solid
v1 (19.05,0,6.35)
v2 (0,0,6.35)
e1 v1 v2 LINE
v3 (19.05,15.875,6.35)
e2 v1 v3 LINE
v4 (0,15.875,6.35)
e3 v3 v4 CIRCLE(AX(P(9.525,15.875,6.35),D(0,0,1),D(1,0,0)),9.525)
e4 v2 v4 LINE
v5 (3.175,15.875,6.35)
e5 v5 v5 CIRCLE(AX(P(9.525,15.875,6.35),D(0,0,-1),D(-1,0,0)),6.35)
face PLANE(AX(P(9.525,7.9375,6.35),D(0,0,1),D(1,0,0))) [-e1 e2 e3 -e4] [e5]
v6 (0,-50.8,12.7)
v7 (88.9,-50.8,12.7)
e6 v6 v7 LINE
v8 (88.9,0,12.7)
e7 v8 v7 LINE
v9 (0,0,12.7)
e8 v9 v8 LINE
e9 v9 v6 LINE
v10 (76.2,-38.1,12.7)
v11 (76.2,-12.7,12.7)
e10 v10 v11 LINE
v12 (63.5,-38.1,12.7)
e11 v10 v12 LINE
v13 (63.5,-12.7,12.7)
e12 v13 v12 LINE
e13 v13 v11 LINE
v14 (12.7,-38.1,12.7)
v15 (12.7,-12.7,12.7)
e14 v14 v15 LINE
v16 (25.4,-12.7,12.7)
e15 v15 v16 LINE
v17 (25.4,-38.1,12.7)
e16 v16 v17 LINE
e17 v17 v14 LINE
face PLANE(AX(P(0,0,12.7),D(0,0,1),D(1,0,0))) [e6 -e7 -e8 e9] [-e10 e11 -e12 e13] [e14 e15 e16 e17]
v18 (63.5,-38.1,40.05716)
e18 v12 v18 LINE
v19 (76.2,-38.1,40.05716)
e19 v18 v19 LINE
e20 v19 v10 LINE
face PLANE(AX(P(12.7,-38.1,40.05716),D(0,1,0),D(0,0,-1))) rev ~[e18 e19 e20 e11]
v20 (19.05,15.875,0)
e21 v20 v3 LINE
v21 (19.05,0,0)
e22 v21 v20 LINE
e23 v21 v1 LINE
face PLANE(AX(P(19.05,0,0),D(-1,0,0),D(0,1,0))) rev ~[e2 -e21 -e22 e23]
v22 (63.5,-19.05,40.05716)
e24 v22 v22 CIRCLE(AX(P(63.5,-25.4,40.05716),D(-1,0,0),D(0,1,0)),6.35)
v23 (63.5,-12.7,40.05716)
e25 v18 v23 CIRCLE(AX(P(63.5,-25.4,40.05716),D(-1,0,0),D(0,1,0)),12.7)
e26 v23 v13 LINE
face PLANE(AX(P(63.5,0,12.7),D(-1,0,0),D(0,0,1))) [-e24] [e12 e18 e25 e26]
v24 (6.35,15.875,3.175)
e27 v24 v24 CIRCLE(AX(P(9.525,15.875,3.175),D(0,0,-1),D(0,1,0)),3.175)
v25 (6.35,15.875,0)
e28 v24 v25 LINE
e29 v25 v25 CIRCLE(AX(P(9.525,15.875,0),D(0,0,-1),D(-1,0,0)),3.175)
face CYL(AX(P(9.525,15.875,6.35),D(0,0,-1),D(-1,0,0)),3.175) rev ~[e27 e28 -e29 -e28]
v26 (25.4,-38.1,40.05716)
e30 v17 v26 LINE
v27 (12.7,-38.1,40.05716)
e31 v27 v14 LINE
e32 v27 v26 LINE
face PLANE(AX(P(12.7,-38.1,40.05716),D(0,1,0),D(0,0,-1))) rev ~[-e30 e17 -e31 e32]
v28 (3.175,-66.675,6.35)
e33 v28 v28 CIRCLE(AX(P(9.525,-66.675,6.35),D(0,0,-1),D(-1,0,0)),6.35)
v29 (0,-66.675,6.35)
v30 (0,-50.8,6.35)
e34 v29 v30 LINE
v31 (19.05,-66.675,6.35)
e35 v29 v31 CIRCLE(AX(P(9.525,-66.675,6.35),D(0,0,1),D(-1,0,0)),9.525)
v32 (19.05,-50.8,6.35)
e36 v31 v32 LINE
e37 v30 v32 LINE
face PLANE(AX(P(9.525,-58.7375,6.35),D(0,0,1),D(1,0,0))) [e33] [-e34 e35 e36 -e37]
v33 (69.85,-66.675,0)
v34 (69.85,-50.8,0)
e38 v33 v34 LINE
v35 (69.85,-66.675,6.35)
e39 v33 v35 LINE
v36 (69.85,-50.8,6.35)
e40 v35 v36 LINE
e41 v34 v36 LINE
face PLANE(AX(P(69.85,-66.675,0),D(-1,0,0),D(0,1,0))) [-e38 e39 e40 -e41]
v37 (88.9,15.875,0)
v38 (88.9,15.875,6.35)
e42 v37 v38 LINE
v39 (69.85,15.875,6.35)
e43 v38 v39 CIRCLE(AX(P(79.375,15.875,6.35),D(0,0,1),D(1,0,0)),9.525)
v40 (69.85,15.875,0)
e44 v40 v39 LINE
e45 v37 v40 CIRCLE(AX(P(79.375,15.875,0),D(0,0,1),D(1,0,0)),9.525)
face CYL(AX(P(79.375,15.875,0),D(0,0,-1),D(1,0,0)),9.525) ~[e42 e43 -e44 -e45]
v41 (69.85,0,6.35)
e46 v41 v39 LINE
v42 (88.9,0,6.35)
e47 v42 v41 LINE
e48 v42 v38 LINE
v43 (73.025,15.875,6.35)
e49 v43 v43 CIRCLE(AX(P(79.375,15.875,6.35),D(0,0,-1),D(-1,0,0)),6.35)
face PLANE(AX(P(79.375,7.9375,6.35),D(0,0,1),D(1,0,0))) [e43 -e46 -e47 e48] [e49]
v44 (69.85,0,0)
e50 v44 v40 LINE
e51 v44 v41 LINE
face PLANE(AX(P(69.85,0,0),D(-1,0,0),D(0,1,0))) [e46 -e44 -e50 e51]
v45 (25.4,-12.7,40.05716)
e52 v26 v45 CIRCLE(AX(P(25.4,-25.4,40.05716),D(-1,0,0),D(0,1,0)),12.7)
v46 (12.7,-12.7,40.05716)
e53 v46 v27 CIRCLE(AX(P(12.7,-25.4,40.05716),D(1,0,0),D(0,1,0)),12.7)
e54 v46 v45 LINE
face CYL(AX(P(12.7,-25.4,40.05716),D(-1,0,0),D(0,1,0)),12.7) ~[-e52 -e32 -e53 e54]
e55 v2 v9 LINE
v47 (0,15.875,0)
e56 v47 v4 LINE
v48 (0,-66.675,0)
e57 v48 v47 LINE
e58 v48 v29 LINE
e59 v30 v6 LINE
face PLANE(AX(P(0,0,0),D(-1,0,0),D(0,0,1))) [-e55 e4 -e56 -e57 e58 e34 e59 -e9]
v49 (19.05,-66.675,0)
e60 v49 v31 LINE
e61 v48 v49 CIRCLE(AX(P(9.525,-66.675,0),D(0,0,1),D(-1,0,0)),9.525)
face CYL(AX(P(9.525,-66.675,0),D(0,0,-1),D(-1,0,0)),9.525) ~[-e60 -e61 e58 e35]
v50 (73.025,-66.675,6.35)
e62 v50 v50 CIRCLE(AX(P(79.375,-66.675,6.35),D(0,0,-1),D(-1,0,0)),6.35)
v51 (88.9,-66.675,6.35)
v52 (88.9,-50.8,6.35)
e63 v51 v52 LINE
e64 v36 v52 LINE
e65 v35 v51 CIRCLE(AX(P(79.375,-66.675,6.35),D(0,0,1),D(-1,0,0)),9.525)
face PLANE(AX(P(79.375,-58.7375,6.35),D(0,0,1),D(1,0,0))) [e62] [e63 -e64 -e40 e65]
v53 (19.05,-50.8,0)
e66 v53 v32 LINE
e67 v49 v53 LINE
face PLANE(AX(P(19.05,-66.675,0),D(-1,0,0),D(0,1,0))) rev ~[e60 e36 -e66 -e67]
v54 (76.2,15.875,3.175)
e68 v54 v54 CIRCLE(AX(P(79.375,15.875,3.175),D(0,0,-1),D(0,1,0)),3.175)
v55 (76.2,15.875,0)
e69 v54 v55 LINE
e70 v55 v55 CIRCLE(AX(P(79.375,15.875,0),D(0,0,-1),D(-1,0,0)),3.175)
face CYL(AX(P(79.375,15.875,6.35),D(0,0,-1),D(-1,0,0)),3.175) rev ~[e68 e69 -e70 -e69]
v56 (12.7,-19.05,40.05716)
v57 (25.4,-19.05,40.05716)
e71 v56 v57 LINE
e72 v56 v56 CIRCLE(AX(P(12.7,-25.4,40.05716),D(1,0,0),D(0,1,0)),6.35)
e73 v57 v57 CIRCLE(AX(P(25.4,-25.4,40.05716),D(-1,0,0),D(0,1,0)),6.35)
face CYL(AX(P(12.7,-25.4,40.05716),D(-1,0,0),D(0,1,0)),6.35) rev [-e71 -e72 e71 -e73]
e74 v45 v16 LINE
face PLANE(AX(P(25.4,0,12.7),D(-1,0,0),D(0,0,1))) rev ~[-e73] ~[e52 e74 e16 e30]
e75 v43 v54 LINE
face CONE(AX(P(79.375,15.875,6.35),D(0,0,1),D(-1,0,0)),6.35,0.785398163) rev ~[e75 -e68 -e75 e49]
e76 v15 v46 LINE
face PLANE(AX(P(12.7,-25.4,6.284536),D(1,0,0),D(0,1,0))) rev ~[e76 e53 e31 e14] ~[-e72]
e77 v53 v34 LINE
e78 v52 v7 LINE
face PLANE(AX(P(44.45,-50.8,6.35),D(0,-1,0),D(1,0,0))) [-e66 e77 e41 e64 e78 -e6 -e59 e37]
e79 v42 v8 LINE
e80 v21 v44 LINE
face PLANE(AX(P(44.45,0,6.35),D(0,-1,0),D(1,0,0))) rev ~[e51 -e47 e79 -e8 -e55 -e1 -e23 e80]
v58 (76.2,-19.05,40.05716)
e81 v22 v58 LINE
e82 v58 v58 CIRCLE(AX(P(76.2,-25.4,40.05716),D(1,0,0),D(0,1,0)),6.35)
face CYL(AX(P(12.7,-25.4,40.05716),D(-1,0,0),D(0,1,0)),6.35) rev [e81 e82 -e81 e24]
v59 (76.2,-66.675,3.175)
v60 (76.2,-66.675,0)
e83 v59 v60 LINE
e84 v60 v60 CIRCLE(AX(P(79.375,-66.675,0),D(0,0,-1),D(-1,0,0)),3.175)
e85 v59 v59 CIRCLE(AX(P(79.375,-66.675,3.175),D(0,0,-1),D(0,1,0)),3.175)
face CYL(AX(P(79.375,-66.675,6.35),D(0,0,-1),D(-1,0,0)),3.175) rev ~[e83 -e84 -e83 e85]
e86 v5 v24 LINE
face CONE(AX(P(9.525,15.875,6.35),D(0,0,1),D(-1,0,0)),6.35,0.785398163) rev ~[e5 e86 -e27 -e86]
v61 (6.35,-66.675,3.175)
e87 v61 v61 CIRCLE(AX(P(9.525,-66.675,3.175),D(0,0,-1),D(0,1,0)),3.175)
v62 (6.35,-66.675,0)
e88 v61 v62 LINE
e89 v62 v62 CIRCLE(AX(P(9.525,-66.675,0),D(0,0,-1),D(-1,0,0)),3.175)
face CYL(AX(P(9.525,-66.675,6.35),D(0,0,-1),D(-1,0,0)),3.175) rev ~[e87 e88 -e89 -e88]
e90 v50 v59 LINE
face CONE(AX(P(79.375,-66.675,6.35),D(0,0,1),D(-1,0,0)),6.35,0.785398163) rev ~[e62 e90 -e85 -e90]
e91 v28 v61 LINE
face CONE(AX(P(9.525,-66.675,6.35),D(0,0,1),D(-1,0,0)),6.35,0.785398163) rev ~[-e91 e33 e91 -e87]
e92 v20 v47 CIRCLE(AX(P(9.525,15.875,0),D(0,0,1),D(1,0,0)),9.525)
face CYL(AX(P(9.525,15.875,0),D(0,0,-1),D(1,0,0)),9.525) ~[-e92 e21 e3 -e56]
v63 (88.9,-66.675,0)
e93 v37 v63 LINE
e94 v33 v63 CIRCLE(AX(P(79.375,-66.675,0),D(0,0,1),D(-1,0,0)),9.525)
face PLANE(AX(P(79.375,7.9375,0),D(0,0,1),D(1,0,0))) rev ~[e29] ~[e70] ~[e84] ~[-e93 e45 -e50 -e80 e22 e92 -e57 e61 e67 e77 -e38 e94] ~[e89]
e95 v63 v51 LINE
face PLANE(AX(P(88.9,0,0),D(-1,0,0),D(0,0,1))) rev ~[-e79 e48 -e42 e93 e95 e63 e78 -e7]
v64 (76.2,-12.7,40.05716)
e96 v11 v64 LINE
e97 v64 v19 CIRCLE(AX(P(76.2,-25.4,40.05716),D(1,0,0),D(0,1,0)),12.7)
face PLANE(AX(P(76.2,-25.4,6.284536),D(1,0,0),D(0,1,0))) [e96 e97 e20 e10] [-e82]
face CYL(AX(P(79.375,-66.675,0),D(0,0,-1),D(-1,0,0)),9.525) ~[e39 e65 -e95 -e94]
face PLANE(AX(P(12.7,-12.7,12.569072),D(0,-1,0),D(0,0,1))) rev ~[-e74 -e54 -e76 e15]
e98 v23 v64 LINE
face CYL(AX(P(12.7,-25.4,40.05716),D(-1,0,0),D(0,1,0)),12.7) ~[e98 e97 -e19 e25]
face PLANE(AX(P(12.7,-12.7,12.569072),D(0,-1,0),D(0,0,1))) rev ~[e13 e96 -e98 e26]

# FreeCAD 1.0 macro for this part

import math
import FreeCAD as App
import Part
import Sketcher
Q = App.Units.Quantity


def add_polygon(sketch, points):
    """Adds a closed chain of lines whose ends are joined by coincident constraints."""
    first, n = sketch.GeometryCount, len(points)
    for a, b in zip(points, points[1:] + points[:1]):
        sketch.addGeometry(Part.LineSegment(App.Vector(*a, 0), App.Vector(*b, 0)), False)
    for i in range(n):
        sketch.addConstraint(Sketcher.Constraint("Coincident", first + i, 2, first + (i + 1) % n, 1))

doc = App.newDocument("Part")
params = doc.addObject("Spreadsheet::Sheet", "Params")
for row, (alias, value) in enumerate([
    ("sketch1_width", "3.5 in"),
    ("sketch1_height", "0.5 in"),
    ("pad1_length", "2 in"),
    ("sketch2_radius", "0.375 in"),
    ("sketch2_height", "0.625 in"),
    ("pad2_length", "0.25 in"),
    ("sketch3_diameter", "0.5 in"),
    ("sketch3_radius", "0.5 in"),
    ("sketch3_width", "2 in"),
    ("pad3_length", "2.5 in"),
    ("sketch4_width", "1.5 in"),
    ("sketch4_height", "1.75 in"),
    ("pocket1_length", "2 in"),
    ("sketch5_diameter", "0.25 in"),
    ("hole_diameter", "0.25 in"),
    ("hole_csink_diameter", "0.5 in"),
], start=1):
    params.set(f"A{row}", alias)
    params.set(f"B{row}", "=" + value)
    params.setAlias(f"B{row}", alias)

body = doc.addObject("PartDesign::Body", "Body")

# Sketch on XZ plane
sketch1 = body.newObject("Sketcher::SketchObject", "Sketch")
sketch1.AttachmentSupport = (doc.getObject("XZ_Plane"), [""])
sketch1.MapMode = "FlatFace"
add_polygon(sketch1, [(0, 13), (0, 0), (89, 0), (89, 13)])  # lines 0-3
sketch1.addConstraint(Sketcher.Constraint("Vertical", 0))
sketch1.addConstraint(Sketcher.Constraint("Horizontal", 1))
sketch1.addConstraint(Sketcher.Constraint("Vertical", 2))
sketch1.addConstraint(Sketcher.Constraint("Horizontal", 3))
sketch1.addConstraint(Sketcher.Constraint("Coincident", 0, 2, -1, 1))
sketch1.addConstraint(Sketcher.Constraint("DistanceX", 1, 1, 1, 2, Q("3.5 in")))
sketch1.addConstraint(Sketcher.Constraint("DistanceY", 0, 2, 0, 1, Q("0.5 in")))
sketch1.setExpression("Constraints[9]", "Params.sketch1_width")
sketch1.setExpression("Constraints[10]", "Params.sketch1_height")
pad1 = body.newObject("PartDesign::Pad", "Pad")
pad1.Profile = sketch1
pad1.setExpression("Length", "Params.pad1_length")

# Sketch on XY plane
sketch2 = body.newObject("Sketcher::SketchObject", "Sketch001")
sketch2.AttachmentSupport = (doc.getObject("XY_Plane"), [""])
sketch2.MapMode = "FlatFace"
sketch2.addGeometry(Part.LineSegment(App.Vector(70, 16, 0), App.Vector(70, 0, 0)), False)
sketch2.addGeometry(Part.LineSegment(App.Vector(70, 0, 0), App.Vector(89, 0, 0)), False)
sketch2.addGeometry(Part.LineSegment(App.Vector(89, 0, 0), App.Vector(89, 16, 0)), False)
sketch2.addGeometry(Part.ArcOfCircle(Part.Circle(App.Vector(79, 16, 0), App.Vector(0, 0, 1), 10), math.radians(0), math.radians(180)), False)
sketch2.addGeometry(Part.LineSegment(App.Vector(70, -51, 0), App.Vector(70, -67, 0)), False)
sketch2.addGeometry(Part.ArcOfCircle(Part.Circle(App.Vector(79, -67, 0), App.Vector(0, 0, 1), 10), math.radians(180), math.radians(360)), False)
sketch2.addGeometry(Part.LineSegment(App.Vector(89, -67, 0), App.Vector(89, -51, 0)), False)
sketch2.addGeometry(Part.LineSegment(App.Vector(89, -51, 0), App.Vector(70, -51, 0)), False)
sketch2.addGeometry(Part.LineSegment(App.Vector(0, -51, 0), App.Vector(0, -67, 0)), False)
sketch2.addGeometry(Part.ArcOfCircle(Part.Circle(App.Vector(10, -67, 0), App.Vector(0, 0, 1), 10), math.radians(180), math.radians(360)), False)
sketch2.addGeometry(Part.LineSegment(App.Vector(19, -67, 0), App.Vector(19, -51, 0)), False)
sketch2.addGeometry(Part.LineSegment(App.Vector(19, -51, 0), App.Vector(0, -51, 0)), False)
sketch2.addGeometry(Part.LineSegment(App.Vector(0, 16, 0), App.Vector(0, 0, 0)), False)
sketch2.addGeometry(Part.LineSegment(App.Vector(0, 0, 0), App.Vector(19, 0, 0)), False)
sketch2.addGeometry(Part.LineSegment(App.Vector(19, 0, 0), App.Vector(19, 16, 0)), False)
sketch2.addGeometry(Part.ArcOfCircle(Part.Circle(App.Vector(10, 16, 0), App.Vector(0, 0, 1), 10), math.radians(0), math.radians(180)), False)
sketch2.addConstraint(Sketcher.Constraint("Coincident", 0, 2, 1, 1))
sketch2.addConstraint(Sketcher.Constraint("Coincident", 1, 2, 2, 1))
sketch2.addConstraint(Sketcher.Constraint("Tangent", 2, 2, 3, 1))
sketch2.addConstraint(Sketcher.Constraint("Tangent", 3, 2, 0, 1))
sketch2.addConstraint(Sketcher.Constraint("Tangent", 4, 2, 5, 1))
sketch2.addConstraint(Sketcher.Constraint("Tangent", 5, 2, 6, 1))
sketch2.addConstraint(Sketcher.Constraint("Coincident", 6, 2, 7, 1))
sketch2.addConstraint(Sketcher.Constraint("Coincident", 7, 2, 4, 1))
sketch2.addConstraint(Sketcher.Constraint("Tangent", 8, 2, 9, 1))
sketch2.addConstraint(Sketcher.Constraint("Tangent", 9, 2, 10, 1))
sketch2.addConstraint(Sketcher.Constraint("Coincident", 10, 2, 11, 1))
sketch2.addConstraint(Sketcher.Constraint("Coincident", 11, 2, 8, 1))
sketch2.addConstraint(Sketcher.Constraint("Coincident", 12, 2, 13, 1))
sketch2.addConstraint(Sketcher.Constraint("Coincident", 13, 2, 14, 1))
sketch2.addConstraint(Sketcher.Constraint("Tangent", 14, 2, 15, 1))
sketch2.addConstraint(Sketcher.Constraint("Tangent", 15, 2, 12, 1))
sketch2.addConstraint(Sketcher.Constraint("Vertical", 0))
sketch2.addConstraint(Sketcher.Constraint("Horizontal", 1))
sketch2.addConstraint(Sketcher.Constraint("Vertical", 2))
sketch2.addConstraint(Sketcher.Constraint("Vertical", 4))
sketch2.addConstraint(Sketcher.Constraint("Vertical", 6))
sketch2.addConstraint(Sketcher.Constraint("Horizontal", 7))
sketch2.addConstraint(Sketcher.Constraint("Vertical", 8))
sketch2.addConstraint(Sketcher.Constraint("Vertical", 10))
sketch2.addConstraint(Sketcher.Constraint("Horizontal", 11))
sketch2.addConstraint(Sketcher.Constraint("Vertical", 12))
sketch2.addConstraint(Sketcher.Constraint("Horizontal", 13))
sketch2.addConstraint(Sketcher.Constraint("Vertical", 14))
sketch2.addConstraint(Sketcher.Constraint("Coincident", 12, 2, -1, 1))
sketch2.addConstraint(Sketcher.Constraint("Equal", 3, 5))
sketch2.addConstraint(Sketcher.Constraint("Equal", 5, 9))
sketch2.addConstraint(Sketcher.Constraint("Equal", 9, 15))
sketch2.addConstraint(Sketcher.Constraint("PointOnObject", 0, 2, -1))
sketch2.addConstraint(Sketcher.Constraint("PointOnObject", 8, 2, -2))
sketch2.addConstraint(Sketcher.Constraint("Horizontal", 5, 3, 9, 3))
sketch2.addConstraint(Sketcher.Constraint("Horizontal", 3, 3, 15, 3))
sketch2.addConstraint(Sketcher.Constraint("Horizontal", 7, 2, 10, 2))
sketch2.addConstraint(Sketcher.Constraint("Vertical", 3, 3, 5, 3))
sketch2.addConstraint(Sketcher.Constraint("Equal", 2, 4))
sketch2.addConstraint(Sketcher.Constraint("DistanceY", 6, 2, -1, 1, Q("2 in")))
sketch2.addConstraint(Sketcher.Constraint("Radius", 3, Q("0.375 in")))
sketch2.addConstraint(Sketcher.Constraint("DistanceX", 9, 2, 4, 2, Q("2 in")))
sketch2.addConstraint(Sketcher.Constraint("DistanceY", 0, 2, 0, 1, Q("0.625 in")))
sketch2.setExpression("Constraints[40]", "Params.sketch2_radius")
sketch2.setExpression("Constraints[42]", "Params.sketch2_height")
pad2 = body.newObject("PartDesign::Pad", "Pad001")
pad2.Profile = sketch2
pad2.setExpression("Length", "Params.pad2_length")

# Sketch on YZ plane
sketch3 = body.newObject("Sketcher::SketchObject", "Sketch002")
sketch3.AttachmentSupport = (doc.getObject("YZ_Plane"), [""])
sketch3.MapMode = "FlatFace"
sketch3.AttachmentOffset = App.Placement(App.Vector(0, 0, 0.5 * 25.4), App.Rotation())
sketch3.addGeometry(Part.LineSegment(App.Vector(-51, 0, 0), App.Vector(0, 0, 0)), False)
sketch3.addGeometry(Part.LineSegment(App.Vector(0, 0, 0), App.Vector(0, 13, 0)), False)
sketch3.addGeometry(Part.LineSegment(App.Vector(0, 13, 0), App.Vector(-13, 13, 0)), False)
sketch3.addGeometry(Part.LineSegment(App.Vector(-13, 13, 0), App.Vector(-13, 40, 0)), False)
sketch3.addGeometry(Part.ArcOfCircle(Part.Circle(App.Vector(-25, 40, 0), App.Vector(0, 0, 1), 13), math.radians(0), math.radians(180)), False)
sketch3.addGeometry(Part.LineSegment(App.Vector(-38, 40, 0), App.Vector(-38, 13, 0)), False)
sketch3.addGeometry(Part.LineSegment(App.Vector(-38, 13, 0), App.Vector(-51, 13, 0)), False)
sketch3.addGeometry(Part.LineSegment(App.Vector(-51, 13, 0), App.Vector(-51, 0, 0)), False)
sketch3.addGeometry(Part.Circle(App.Vector(-25, 40, 0), App.Vector(0, 0, 1), 6), False)
sketch3.addConstraint(Sketcher.Constraint("Coincident", 0, 2, 1, 1))
sketch3.addConstraint(Sketcher.Constraint("Coincident", 1, 2, 2, 1))
sketch3.addConstraint(Sketcher.Constraint("Coincident", 2, 2, 3, 1))
sketch3.addConstraint(Sketcher.Constraint("Tangent", 3, 2, 4, 1))
sketch3.addConstraint(Sketcher.Constraint("Tangent", 4, 2, 5, 1))
sketch3.addConstraint(Sketcher.Constraint("Coincident", 5, 2, 6, 1))
sketch3.addConstraint(Sketcher.Constraint("Coincident", 6, 2, 7, 1))
sketch3.addConstraint(Sketcher.Constraint("Coincident", 7, 2, 0, 1))
sketch3.addConstraint(Sketcher.Constraint("Horizontal", 0))
sketch3.addConstraint(Sketcher.Constraint("Vertical", 1))
sketch3.addConstraint(Sketcher.Constraint("Horizontal", 2))
sketch3.addConstraint(Sketcher.Constraint("Vertical", 3))
sketch3.addConstraint(Sketcher.Constraint("Vertical", 5))
sketch3.addConstraint(Sketcher.Constraint("Horizontal", 6))
sketch3.addConstraint(Sketcher.Constraint("Vertical", 7))
sketch3.addConstraint(Sketcher.Constraint("Coincident", 0, 2, -1, 1))
sketch3.addConstraint(Sketcher.Constraint("Coincident", 8, 3, 4, 3))
sketch3.addConstraint(Sketcher.Constraint("Horizontal", 2, 2, 5, 2))
sketch3.addConstraint(Sketcher.Constraint("Equal", 2, 6))
sketch3.addConstraint(Sketcher.Constraint("Diameter", 8, Q("0.5 in")))
sketch3.addConstraint(Sketcher.Constraint("Radius", 4, Q("0.5 in")))
sketch3.addConstraint(Sketcher.Constraint("DistanceX", 0, 1, 0, 2, Q("2 in")))
sketch3.addConstraint(Sketcher.Constraint("DistanceY", 1, 1, 1, 2, Q("12.569072 mm")))
sketch3.addConstraint(Sketcher.Constraint("DistanceY", 3, 1, 3, 2, Q("27.488088 mm")))
sketch3.setExpression("Constraints[19]", "Params.sketch3_diameter")
sketch3.setExpression("Constraints[20]", "Params.sketch3_radius")
sketch3.setExpression("Constraints[21]", "Params.sketch3_width")
pad3 = body.newObject("PartDesign::Pad", "Pad002")
pad3.Profile = sketch3
pad3.setExpression("Length", "Params.pad3_length")

# Sketch on XZ plane
sketch4 = body.newObject("Sketcher::SketchObject", "Sketch003")
sketch4.AttachmentSupport = (doc.getObject("XZ_Plane"), [""])
sketch4.MapMode = "FlatFace"
add_polygon(sketch4, [(25, 57), (25, 13), (64, 13), (64, 57)])  # lines 0-3
sketch4.addConstraint(Sketcher.Constraint("Vertical", 0))
sketch4.addConstraint(Sketcher.Constraint("Horizontal", 1))
sketch4.addConstraint(Sketcher.Constraint("Vertical", 2))
sketch4.addConstraint(Sketcher.Constraint("Horizontal", 3))
sketch4.addConstraint(Sketcher.Constraint("DistanceX", 1, 1, 1, 2, Q("1.5 in")))
sketch4.addConstraint(Sketcher.Constraint("DistanceX", -1, 1, 0, 2, Q("1 in")))
sketch4.addConstraint(Sketcher.Constraint("DistanceY", 0, 2, 0, 1, Q("1.75 in")))
sketch4.addConstraint(Sketcher.Constraint("DistanceY", -1, 1, 0, 2, Q("0.5 in")))
sketch4.setExpression("Constraints[8]", "Params.sketch4_width")
sketch4.setExpression("Constraints[10]", "Params.sketch4_height")
pocket1 = body.newObject("PartDesign::Pocket", "Pocket")
pocket1.Profile = sketch4
pocket1.setExpression("Length", "Params.pocket1_length")
pocket1.Reversed = True

# Sketch on XY plane
sketch5 = body.newObject("Sketcher::SketchObject", "Sketch004")
sketch5.AttachmentSupport = (doc.getObject("XY_Plane"), [""])
sketch5.MapMode = "FlatFace"
sketch5.AttachmentOffset = App.Placement(App.Vector(0, 0, 0.25 * 25.4), App.Rotation())
sketch5.addGeometry(Part.Circle(App.Vector(9.5, -66.7, 0), App.Vector(0, 0, 1), 3.2), False)
sketch5.addGeometry(Part.Circle(App.Vector(79.4, -66.7, 0), App.Vector(0, 0, 1), 3.2), False)
sketch5.addGeometry(Part.Circle(App.Vector(9.5, 15.9, 0), App.Vector(0, 0, 1), 3.2), False)
sketch5.addGeometry(Part.Circle(App.Vector(79.4, 15.9, 0), App.Vector(0, 0, 1), 3.2), False)
sketch5.addConstraint(Sketcher.Constraint("Equal", 0, 1))
sketch5.addConstraint(Sketcher.Constraint("Equal", 1, 2))
sketch5.addConstraint(Sketcher.Constraint("Equal", 2, 3))
sketch5.addConstraint(Sketcher.Constraint("Horizontal", 0, 3, 1, 3))
sketch5.addConstraint(Sketcher.Constraint("Horizontal", 2, 3, 3, 3))
sketch5.addConstraint(Sketcher.Constraint("Vertical", 0, 3, 2, 3))
sketch5.addConstraint(Sketcher.Constraint("Vertical", 1, 3, 3, 3))
sketch5.addConstraint(Sketcher.Constraint("Diameter", 0, Q("0.25 in")))
sketch5.addConstraint(Sketcher.Constraint("DistanceX", 0, 3, 1, 3, Q("2.75 in")))
sketch5.addConstraint(Sketcher.Constraint("DistanceY", 0, 3, 2, 3, Q("3.25 in")))
sketch5.addConstraint(Sketcher.Constraint("DistanceX", -1, 1, 0, 3, Q("0.375 in")))
sketch5.addConstraint(Sketcher.Constraint("DistanceY", 0, 3, -1, 1, Q("2.625 in")))
sketch5.setExpression("Constraints[7]", "Params.sketch5_diameter")
doc.recompute()
hole = body.newObject("PartDesign::Hole", "Hole")
hole.Profile = sketch5
hole.ThreadType = "None"
hole.setExpression("Diameter", "Params.hole_diameter")
hole.DepthType = "ThroughAll"
hole.HoleCutType = "Countersink"
hole.setExpression("HoleCutDiameter", "Params.hole_csink_diameter")
hole.HoleCutCountersinkAngle = 90

doc.recompute()
